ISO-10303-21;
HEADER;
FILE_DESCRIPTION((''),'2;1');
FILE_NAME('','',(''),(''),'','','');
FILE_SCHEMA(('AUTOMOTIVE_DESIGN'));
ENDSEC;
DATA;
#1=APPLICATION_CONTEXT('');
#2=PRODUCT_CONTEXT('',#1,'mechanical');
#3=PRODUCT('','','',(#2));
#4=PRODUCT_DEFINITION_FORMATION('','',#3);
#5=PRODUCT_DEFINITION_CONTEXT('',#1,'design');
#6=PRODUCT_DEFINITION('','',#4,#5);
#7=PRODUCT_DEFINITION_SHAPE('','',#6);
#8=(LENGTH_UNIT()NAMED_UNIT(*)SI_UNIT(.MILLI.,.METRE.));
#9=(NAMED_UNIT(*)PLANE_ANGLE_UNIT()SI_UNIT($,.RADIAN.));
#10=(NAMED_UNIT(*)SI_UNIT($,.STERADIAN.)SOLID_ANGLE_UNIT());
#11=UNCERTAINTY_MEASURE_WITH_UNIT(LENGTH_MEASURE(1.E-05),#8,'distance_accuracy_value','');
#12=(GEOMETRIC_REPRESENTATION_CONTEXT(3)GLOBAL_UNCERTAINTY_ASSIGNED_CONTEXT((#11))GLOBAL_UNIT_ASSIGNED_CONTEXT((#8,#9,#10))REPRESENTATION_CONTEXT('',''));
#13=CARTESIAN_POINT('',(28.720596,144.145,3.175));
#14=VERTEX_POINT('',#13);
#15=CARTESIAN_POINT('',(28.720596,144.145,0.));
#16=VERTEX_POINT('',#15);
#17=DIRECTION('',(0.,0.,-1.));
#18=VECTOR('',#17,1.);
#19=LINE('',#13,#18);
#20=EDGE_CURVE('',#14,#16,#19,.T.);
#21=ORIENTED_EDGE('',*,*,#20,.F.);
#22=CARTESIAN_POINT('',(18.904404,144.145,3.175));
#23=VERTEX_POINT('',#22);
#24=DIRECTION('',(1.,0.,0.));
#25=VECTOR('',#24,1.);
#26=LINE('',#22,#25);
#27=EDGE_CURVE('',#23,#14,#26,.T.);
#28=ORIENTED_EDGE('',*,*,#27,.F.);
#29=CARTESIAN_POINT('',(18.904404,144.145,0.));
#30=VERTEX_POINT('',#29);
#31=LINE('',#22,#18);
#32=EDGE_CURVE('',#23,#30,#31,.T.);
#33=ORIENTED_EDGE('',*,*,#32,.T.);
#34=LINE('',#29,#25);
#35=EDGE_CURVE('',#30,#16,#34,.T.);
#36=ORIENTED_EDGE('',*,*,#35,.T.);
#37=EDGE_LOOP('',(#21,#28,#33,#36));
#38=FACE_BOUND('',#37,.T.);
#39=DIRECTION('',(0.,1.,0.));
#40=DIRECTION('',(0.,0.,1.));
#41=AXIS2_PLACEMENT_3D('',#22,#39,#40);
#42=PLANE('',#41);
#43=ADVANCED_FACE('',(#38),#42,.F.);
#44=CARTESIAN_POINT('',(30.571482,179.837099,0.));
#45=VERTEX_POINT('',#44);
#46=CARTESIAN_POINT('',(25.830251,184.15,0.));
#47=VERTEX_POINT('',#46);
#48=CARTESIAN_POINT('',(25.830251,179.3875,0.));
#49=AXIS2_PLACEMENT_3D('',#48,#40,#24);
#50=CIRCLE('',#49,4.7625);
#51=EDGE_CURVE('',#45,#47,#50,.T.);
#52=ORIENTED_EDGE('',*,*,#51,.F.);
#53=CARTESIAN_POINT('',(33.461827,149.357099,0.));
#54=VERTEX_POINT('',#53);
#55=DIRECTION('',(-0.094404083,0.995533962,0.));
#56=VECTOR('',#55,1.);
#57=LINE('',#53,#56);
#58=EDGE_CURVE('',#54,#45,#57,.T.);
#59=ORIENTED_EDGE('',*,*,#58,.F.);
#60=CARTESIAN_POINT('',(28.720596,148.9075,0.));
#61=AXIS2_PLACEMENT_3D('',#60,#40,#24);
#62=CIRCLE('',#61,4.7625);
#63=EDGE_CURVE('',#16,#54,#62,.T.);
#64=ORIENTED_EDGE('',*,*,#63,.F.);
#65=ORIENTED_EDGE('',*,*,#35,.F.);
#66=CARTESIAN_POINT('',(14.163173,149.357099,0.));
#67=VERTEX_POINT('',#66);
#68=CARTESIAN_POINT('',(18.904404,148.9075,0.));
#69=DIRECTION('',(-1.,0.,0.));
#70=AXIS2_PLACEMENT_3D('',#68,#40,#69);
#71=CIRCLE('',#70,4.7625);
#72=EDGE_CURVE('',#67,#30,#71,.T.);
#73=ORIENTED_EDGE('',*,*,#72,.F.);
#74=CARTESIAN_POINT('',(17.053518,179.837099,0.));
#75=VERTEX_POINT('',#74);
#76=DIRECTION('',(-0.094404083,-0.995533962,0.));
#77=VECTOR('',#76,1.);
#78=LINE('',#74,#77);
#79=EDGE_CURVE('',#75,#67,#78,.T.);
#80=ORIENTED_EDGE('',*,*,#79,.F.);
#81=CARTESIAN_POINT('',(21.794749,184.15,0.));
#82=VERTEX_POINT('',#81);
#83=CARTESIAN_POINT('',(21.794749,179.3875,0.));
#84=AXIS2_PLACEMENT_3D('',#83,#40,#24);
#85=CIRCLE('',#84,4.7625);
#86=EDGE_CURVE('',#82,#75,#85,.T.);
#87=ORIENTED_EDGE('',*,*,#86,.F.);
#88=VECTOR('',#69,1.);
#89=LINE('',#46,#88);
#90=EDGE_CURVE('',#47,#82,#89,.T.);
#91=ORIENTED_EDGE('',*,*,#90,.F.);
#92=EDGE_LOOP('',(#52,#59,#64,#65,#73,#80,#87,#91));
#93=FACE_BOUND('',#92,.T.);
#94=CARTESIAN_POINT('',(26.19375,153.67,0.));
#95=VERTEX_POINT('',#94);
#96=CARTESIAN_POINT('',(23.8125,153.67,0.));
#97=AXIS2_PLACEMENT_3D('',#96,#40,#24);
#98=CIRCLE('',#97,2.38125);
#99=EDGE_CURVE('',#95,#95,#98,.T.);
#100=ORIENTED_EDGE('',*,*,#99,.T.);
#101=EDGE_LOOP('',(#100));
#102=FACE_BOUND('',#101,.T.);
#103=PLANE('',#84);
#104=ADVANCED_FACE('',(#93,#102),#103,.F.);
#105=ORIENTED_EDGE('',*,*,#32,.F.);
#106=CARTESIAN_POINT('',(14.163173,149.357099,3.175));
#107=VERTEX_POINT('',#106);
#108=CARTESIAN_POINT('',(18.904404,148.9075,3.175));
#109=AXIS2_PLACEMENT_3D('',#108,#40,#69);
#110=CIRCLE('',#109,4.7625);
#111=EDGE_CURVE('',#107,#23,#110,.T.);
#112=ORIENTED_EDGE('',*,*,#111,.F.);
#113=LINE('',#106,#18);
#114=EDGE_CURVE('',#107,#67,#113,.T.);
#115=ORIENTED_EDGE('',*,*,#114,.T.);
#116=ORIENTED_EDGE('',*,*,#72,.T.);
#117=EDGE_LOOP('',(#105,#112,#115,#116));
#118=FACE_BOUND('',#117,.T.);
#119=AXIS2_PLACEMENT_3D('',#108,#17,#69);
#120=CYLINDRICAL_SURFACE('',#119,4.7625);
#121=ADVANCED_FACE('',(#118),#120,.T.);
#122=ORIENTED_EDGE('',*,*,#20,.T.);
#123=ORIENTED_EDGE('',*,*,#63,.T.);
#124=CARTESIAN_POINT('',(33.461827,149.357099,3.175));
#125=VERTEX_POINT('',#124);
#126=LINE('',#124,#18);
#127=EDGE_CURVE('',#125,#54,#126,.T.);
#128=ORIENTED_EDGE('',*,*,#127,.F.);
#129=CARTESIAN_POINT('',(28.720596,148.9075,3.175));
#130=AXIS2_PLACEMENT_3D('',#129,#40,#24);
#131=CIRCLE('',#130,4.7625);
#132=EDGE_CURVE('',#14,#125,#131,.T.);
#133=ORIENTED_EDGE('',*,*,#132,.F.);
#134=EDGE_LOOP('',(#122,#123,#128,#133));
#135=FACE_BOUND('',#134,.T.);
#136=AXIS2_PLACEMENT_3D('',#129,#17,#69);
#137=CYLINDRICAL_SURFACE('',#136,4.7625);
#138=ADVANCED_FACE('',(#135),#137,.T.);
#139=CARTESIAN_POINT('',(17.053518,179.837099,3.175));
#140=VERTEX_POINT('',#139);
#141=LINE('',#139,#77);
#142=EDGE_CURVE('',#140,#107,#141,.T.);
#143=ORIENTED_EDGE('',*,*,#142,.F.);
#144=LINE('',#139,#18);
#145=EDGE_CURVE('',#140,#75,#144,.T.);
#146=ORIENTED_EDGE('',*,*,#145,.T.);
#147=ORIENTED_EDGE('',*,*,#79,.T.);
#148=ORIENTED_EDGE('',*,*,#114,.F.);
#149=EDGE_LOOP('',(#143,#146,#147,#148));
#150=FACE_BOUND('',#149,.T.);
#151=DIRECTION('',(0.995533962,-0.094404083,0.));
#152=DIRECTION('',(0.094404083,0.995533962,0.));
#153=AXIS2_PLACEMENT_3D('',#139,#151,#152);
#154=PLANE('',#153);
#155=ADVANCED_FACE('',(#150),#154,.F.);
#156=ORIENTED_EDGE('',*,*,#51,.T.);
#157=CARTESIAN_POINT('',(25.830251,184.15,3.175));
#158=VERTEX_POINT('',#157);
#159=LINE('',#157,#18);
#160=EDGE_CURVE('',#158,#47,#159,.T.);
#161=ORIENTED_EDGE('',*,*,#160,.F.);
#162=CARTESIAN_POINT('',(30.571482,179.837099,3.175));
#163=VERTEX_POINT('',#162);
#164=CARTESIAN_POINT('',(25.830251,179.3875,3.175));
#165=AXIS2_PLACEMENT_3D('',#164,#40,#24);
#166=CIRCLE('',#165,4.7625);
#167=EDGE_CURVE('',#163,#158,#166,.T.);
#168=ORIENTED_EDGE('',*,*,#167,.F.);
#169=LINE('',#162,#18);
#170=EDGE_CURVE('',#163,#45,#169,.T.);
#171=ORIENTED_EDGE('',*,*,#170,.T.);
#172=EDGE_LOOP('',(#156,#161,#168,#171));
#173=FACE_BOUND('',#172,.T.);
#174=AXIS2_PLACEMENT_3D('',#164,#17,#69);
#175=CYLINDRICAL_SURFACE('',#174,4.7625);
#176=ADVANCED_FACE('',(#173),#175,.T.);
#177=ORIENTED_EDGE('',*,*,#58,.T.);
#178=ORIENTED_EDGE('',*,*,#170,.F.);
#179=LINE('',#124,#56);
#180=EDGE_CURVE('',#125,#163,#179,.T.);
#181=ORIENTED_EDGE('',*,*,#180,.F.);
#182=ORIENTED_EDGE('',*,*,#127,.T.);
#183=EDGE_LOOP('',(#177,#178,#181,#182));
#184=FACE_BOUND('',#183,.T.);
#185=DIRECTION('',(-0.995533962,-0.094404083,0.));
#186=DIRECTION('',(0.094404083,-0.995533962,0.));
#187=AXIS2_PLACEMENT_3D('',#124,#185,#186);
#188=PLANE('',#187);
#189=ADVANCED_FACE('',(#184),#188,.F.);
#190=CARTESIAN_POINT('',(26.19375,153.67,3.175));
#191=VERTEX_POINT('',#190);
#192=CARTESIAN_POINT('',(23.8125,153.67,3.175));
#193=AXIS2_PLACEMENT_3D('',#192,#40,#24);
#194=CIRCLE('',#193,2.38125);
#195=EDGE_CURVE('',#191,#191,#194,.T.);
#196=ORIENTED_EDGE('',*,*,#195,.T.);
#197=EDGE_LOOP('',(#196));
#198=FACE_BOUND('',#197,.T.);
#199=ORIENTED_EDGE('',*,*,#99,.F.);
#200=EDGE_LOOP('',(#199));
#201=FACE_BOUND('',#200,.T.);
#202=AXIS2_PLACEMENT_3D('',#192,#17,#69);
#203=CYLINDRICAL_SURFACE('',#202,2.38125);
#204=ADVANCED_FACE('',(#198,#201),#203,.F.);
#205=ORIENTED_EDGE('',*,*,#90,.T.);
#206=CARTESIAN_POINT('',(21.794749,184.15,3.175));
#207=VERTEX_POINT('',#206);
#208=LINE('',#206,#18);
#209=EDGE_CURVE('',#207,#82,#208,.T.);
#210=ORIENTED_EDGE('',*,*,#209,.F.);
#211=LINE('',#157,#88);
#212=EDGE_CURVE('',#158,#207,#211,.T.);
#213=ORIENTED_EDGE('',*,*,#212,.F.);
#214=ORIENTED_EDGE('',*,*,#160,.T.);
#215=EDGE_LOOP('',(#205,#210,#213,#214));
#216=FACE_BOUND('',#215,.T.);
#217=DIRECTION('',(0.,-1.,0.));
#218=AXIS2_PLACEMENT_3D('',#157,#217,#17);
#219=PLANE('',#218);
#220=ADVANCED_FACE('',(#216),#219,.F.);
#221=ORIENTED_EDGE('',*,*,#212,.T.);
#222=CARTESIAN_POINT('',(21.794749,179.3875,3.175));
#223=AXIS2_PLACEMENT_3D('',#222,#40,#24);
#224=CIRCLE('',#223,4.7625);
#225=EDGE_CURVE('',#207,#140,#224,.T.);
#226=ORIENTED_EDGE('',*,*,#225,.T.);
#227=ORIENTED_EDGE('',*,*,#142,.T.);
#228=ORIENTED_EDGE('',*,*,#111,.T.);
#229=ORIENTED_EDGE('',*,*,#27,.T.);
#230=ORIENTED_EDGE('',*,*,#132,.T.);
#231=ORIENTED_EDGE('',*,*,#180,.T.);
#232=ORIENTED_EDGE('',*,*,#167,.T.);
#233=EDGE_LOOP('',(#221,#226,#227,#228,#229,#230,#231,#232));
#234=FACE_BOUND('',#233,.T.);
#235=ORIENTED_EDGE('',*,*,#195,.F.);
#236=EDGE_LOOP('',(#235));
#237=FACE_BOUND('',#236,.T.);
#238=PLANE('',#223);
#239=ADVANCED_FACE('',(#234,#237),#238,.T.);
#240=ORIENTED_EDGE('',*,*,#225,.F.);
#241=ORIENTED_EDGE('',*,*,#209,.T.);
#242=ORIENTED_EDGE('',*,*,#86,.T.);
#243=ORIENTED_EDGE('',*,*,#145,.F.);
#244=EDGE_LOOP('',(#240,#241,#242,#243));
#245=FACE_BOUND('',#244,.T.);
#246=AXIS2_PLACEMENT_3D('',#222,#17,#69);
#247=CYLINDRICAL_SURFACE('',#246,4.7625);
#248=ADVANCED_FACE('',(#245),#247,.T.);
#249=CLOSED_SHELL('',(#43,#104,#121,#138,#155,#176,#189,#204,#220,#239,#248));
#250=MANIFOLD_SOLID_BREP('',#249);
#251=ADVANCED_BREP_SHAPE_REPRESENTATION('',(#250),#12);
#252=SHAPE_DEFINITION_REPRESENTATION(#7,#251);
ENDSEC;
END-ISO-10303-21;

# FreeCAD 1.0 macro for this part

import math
import FreeCAD as App
import Part
import Sketcher
Q = App.Units.Quantity

doc = App.newDocument("Part")
body = doc.addObject("PartDesign::Body", "Body")

# Sketch on XY plane
sketch1 = body.newObject("Sketcher::SketchObject", "Sketch")
sketch1.AttachmentSupport = (doc.getObject("XY_Plane"), [""])
sketch1.MapMode = "FlatFace"
sketch1.addGeometry([
    Part.LineSegment(App.Vector(33.5, 149.4, 0), App.Vector(30.6, 179.8, 0)),  # 0
    Part.ArcOfCircle(Part.Circle(App.Vector(25.8, 179.4, 0), App.Vector(0, 0, 1), 4.8), math.radians(5), math.radians(90)),  # 1
    Part.LineSegment(App.Vector(25.8, 184.2, 0), App.Vector(21.8, 184.2, 0)),  # 2
    Part.ArcOfCircle(Part.Circle(App.Vector(21.8, 179.4, 0), App.Vector(0, 0, 1), 4.8), math.radians(90), math.radians(175)),  # 3
    Part.LineSegment(App.Vector(17.1, 179.8, 0), App.Vector(14.2, 149.4, 0)),  # 4
    Part.ArcOfCircle(Part.Circle(App.Vector(18.9, 148.9, 0), App.Vector(0, 0, 1), 4.8), math.radians(175), math.radians(270)),  # 5
    Part.LineSegment(App.Vector(18.9, 144.1, 0), App.Vector(28.7, 144.1, 0)),  # 6
    Part.ArcOfCircle(Part.Circle(App.Vector(28.7, 148.9, 0), App.Vector(0, 0, 1), 4.8), math.radians(-90), math.radians(5)),  # 7
    Part.Circle(App.Vector(23.8, 153.7, 0), App.Vector(0, 0, 1), 2.4),  # 8
], False)
sketch1.addConstraint([
    Sketcher.Constraint("Tangent", 0, 2, 1, 1),
    Sketcher.Constraint("Tangent", 1, 2, 2, 1),
    Sketcher.Constraint("Tangent", 2, 2, 3, 1),
    Sketcher.Constraint("Tangent", 3, 2, 4, 1),
    Sketcher.Constraint("Tangent", 4, 2, 5, 1),
    Sketcher.Constraint("Tangent", 5, 2, 6, 1),
    Sketcher.Constraint("Tangent", 6, 2, 7, 1),
    Sketcher.Constraint("Tangent", 7, 2, 0, 1),
    Sketcher.Constraint("Horizontal", 2),
    Sketcher.Constraint("Horizontal", 6),
    Sketcher.Constraint("Equal", 1, 3),
    Sketcher.Constraint("Equal", 3, 5),
    Sketcher.Constraint("Equal", 5, 7),
    Sketcher.Constraint("Horizontal", 0, 2, 3, 2),
    Sketcher.Constraint("Diameter", 8, Q("0.1875 in")),
    Sketcher.Constraint("Radius", 1, Q("0.1875 in")),
    Sketcher.Constraint("DistanceY", 5, 3, 3, 3, Q("1.2 in")),
    Sketcher.Constraint("DistanceY", 8, 3, 1, 2, Q("1.2 in")),
    Sketcher.Constraint("DistanceY", -1, 1, 8, 3, Q("6.05 in")),
    Sketcher.Constraint("DistanceX", -1, 1, 8, 3, Q("0.9375 in")),
    Sketcher.Constraint("DistanceY", -1, 1, 0, 2, Q("179.837099 mm")),
    Sketcher.Constraint("DistanceX", 2, 2, 2, 1, Q("4.035503 mm")),
    Sketcher.Constraint("DistanceX", -1, 1, 1, 3, Q("25.830251 mm")),
])
pad1 = body.newObject("PartDesign::Pad", "Pad")
pad1.Profile = sketch1
pad1.Length = Q("0.125 in")

doc.recompute()
